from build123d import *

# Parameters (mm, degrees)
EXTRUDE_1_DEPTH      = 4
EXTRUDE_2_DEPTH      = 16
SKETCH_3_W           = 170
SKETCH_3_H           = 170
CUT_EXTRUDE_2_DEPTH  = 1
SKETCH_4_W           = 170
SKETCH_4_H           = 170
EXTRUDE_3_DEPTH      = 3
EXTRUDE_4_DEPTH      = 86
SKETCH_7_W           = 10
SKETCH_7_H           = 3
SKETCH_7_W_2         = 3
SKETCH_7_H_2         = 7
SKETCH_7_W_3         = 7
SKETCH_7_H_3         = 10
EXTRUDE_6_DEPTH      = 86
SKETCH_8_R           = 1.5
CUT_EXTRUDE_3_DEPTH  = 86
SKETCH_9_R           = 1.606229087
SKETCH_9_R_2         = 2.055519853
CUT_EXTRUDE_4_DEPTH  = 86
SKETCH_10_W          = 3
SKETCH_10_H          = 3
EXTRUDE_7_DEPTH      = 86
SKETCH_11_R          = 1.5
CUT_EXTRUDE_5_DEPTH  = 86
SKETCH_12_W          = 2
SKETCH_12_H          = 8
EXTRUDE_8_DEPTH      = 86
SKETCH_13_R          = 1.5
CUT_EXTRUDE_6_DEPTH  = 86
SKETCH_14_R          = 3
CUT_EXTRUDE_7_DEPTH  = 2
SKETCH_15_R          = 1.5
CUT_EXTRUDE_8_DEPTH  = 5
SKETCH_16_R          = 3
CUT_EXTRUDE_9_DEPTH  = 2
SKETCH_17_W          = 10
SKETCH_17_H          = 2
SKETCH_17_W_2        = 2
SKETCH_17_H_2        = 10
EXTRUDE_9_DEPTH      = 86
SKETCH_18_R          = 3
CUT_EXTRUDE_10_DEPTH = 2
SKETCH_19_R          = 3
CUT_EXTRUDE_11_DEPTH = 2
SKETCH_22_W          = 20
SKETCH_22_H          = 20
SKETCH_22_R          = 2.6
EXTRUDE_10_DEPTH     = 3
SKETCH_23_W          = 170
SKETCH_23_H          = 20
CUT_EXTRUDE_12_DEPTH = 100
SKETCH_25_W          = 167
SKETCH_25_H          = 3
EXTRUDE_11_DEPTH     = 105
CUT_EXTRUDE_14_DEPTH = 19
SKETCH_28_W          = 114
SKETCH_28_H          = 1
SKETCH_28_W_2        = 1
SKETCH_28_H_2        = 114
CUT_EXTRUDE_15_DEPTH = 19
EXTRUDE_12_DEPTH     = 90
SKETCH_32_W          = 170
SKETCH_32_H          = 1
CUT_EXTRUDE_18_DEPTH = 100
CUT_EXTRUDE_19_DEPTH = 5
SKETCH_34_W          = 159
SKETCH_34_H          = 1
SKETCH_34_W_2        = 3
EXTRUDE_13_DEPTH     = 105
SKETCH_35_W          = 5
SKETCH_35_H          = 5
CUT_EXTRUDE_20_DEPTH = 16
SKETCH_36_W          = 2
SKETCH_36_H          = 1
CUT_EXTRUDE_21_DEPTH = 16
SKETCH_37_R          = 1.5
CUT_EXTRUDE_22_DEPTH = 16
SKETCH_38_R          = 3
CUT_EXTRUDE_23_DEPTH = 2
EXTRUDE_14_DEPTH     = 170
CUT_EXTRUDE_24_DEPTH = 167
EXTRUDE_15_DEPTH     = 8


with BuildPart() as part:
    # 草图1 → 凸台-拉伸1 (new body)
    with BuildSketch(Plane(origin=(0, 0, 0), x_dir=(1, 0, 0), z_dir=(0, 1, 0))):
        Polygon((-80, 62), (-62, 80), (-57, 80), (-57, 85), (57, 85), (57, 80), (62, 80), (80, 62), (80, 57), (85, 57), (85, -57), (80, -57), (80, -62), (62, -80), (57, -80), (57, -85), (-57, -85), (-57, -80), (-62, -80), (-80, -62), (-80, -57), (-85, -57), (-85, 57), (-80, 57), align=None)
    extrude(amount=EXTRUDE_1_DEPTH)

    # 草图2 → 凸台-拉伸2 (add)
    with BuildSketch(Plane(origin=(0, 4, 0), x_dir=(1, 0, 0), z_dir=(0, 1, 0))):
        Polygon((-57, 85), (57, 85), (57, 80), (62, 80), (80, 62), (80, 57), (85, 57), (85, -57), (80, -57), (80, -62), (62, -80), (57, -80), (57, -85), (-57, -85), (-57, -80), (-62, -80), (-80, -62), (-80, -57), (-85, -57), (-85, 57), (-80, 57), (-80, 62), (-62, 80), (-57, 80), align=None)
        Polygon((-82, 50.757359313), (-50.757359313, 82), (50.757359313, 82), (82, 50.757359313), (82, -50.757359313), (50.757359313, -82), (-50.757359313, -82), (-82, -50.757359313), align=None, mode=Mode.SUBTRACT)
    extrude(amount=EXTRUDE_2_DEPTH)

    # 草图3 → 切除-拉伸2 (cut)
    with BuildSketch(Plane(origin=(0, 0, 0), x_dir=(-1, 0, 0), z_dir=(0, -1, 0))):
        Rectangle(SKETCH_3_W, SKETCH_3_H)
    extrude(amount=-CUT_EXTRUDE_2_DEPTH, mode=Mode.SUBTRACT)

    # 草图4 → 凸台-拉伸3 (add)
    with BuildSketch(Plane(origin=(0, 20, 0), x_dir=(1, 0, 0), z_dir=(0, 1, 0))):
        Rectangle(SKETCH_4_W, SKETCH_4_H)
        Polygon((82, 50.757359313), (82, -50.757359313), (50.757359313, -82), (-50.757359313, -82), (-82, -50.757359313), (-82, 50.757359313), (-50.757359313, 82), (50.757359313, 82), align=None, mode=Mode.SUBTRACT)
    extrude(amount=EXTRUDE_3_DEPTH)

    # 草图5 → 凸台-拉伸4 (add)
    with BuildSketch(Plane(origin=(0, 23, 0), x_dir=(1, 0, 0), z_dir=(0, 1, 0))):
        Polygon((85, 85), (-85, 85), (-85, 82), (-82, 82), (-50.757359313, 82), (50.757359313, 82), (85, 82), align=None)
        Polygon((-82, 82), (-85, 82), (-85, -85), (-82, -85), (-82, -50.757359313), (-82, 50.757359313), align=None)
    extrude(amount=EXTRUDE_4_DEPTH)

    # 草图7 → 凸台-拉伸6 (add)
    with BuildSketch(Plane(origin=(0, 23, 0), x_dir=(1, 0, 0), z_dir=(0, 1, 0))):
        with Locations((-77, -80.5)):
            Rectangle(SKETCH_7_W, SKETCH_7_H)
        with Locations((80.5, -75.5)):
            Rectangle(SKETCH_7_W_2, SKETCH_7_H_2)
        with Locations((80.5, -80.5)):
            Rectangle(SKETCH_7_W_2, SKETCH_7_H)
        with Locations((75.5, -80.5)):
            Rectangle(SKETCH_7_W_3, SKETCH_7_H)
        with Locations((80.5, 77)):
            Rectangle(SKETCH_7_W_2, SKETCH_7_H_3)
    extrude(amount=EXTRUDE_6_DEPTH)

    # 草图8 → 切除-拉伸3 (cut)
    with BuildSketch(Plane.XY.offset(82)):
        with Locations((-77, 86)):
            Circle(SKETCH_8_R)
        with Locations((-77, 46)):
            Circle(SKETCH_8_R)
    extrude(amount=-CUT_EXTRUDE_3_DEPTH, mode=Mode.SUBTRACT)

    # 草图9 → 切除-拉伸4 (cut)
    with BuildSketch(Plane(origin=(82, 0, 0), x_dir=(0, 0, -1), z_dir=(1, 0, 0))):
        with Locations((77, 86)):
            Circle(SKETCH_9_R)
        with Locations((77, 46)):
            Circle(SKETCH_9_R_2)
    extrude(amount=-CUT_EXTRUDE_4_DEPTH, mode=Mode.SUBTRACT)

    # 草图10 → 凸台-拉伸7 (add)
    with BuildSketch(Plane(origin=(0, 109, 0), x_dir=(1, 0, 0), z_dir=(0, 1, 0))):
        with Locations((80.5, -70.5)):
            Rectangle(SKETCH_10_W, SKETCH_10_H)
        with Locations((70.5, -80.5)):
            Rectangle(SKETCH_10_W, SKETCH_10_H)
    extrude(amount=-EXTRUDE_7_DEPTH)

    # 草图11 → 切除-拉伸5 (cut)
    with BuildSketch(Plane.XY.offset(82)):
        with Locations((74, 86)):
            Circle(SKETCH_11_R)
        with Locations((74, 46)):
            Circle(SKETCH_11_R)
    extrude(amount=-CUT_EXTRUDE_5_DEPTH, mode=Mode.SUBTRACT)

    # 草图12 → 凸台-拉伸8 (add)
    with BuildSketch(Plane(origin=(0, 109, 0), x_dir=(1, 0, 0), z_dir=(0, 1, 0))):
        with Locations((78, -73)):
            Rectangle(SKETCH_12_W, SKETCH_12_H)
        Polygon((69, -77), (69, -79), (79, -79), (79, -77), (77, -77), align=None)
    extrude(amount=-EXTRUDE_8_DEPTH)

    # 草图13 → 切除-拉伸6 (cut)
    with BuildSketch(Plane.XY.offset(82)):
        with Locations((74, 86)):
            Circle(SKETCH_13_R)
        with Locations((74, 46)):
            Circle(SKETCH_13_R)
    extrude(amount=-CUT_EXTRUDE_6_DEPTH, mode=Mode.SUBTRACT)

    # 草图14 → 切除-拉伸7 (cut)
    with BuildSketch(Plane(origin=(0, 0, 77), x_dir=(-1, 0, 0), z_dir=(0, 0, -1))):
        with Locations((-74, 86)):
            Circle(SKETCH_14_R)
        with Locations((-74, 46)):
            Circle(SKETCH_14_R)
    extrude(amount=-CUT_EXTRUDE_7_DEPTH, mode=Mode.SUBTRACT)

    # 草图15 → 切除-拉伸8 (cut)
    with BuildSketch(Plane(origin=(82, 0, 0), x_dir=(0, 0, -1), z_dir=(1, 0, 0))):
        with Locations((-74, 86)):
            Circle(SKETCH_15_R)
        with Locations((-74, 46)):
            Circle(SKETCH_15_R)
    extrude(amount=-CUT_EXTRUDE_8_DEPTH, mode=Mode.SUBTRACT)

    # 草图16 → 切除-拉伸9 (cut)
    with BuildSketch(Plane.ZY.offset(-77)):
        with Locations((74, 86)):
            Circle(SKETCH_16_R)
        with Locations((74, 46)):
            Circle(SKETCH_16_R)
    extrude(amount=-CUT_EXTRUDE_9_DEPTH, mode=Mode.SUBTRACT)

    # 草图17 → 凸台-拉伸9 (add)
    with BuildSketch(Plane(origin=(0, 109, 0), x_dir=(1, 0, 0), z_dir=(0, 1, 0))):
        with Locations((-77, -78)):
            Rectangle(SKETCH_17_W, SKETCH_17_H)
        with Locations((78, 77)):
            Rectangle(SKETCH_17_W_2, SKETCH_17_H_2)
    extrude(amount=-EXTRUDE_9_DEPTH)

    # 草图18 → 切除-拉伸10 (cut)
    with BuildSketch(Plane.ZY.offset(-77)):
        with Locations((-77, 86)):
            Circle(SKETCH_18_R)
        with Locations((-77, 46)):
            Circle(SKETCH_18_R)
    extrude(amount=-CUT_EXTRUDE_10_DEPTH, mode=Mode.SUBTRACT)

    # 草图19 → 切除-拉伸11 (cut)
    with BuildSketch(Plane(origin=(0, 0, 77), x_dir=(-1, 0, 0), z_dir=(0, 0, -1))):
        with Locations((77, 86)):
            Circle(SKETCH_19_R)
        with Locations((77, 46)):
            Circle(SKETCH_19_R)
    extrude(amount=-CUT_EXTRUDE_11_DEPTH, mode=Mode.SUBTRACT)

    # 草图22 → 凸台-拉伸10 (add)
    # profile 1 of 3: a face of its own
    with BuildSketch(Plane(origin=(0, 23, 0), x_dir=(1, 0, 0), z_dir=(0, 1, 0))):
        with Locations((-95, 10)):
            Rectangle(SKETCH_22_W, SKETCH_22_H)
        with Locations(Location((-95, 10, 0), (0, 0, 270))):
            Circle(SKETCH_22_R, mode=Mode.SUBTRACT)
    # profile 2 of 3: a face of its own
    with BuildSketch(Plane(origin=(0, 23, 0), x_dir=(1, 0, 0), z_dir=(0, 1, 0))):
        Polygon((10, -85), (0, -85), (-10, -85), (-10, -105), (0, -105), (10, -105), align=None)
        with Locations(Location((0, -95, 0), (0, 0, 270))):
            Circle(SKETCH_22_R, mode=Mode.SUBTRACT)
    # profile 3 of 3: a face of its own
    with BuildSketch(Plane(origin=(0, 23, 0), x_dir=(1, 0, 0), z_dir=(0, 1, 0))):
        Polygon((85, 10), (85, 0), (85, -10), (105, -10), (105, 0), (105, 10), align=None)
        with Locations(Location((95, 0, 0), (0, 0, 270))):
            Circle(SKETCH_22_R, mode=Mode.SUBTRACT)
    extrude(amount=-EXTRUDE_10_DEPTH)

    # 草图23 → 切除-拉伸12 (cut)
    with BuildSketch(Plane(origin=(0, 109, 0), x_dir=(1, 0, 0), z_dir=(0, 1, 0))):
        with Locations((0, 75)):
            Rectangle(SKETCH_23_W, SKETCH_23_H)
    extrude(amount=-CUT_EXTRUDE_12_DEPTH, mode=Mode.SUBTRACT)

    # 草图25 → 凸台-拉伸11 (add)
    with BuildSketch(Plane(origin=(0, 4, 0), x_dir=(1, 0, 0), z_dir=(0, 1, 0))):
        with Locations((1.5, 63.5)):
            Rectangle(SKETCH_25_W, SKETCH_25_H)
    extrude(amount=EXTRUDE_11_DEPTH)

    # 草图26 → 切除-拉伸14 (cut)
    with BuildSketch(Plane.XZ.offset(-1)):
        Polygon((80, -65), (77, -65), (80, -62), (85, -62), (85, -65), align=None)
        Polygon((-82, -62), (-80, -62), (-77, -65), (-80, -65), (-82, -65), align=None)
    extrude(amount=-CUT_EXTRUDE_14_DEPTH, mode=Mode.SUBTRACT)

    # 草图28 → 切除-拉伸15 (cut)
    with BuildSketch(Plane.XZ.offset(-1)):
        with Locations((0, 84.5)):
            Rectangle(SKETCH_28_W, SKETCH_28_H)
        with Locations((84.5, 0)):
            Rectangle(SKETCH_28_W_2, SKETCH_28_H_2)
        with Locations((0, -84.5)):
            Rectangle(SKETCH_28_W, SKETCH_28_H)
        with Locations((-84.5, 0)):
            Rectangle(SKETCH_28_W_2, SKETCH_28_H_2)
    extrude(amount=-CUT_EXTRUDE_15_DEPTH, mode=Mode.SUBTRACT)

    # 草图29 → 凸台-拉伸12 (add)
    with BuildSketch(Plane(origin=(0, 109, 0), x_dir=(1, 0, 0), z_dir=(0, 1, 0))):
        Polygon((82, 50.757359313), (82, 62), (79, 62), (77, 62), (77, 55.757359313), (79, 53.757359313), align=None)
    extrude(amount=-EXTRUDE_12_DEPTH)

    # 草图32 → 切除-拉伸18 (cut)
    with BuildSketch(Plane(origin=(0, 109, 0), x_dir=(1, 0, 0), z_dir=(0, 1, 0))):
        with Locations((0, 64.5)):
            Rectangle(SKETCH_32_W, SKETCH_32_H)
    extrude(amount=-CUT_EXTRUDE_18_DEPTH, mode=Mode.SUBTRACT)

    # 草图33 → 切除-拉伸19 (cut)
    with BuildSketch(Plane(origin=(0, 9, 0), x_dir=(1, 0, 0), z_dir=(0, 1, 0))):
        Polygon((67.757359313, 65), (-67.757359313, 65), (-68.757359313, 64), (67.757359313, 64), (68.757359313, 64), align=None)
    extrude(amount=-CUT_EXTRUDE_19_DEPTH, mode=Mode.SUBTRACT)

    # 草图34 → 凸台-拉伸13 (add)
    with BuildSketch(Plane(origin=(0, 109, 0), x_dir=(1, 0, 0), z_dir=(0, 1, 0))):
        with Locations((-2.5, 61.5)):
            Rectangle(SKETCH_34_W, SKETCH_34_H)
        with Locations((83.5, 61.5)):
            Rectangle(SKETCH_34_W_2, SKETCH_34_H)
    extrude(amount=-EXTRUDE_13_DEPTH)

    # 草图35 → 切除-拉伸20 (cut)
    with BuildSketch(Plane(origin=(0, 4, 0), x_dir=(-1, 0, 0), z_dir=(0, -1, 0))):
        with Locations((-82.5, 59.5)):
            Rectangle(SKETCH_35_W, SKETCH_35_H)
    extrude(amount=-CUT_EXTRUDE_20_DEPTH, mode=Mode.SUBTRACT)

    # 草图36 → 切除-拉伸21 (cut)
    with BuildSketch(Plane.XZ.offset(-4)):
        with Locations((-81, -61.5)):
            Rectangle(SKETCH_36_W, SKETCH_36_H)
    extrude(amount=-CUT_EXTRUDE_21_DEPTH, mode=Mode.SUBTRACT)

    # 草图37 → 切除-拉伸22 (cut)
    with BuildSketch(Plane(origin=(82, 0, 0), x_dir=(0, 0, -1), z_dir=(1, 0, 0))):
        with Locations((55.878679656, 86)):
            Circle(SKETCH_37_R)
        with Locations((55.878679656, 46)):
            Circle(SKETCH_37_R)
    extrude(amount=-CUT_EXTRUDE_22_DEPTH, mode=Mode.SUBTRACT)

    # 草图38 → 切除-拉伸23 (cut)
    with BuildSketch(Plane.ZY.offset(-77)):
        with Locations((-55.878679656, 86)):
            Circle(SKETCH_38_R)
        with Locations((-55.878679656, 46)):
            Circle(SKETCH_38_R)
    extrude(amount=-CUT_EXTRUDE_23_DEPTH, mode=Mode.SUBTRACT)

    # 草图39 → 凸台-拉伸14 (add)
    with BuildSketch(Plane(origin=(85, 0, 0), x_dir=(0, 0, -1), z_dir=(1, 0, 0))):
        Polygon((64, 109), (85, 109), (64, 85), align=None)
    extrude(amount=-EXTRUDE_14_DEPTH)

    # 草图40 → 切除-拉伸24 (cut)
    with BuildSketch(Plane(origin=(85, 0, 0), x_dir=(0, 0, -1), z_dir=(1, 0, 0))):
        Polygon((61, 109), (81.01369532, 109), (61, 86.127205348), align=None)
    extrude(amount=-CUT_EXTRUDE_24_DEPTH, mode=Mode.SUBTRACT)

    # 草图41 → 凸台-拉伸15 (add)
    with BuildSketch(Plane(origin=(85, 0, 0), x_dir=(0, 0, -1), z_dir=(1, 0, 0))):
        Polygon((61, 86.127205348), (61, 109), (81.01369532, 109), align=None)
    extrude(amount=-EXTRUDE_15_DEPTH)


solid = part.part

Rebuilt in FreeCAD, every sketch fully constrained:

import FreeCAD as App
import Part
import Sketcher
from FreeCAD import Vector
Q = App.Units.Quantity


def add_polygon(sketch, points):
    """Adds a closed chain of lines whose ends are joined by coincident constraints."""
    first, n = sketch.GeometryCount, len(points)
    for a, b in zip(points, points[1:] + points[:1]):
        sketch.addGeometry(Part.LineSegment(App.Vector(*a, 0), App.Vector(*b, 0)), False)
    for i in range(n):
        sketch.addConstraint(Sketcher.Constraint("Coincident", first + i, 2, first + (i + 1) % n, 1))

doc = App.newDocument("Part")
body = doc.addObject("PartDesign::Body", "Body")

sketch1 = body.newObject("Sketcher::SketchObject", "Sketch")
sketch1.AttachmentSupport = (doc.getObject("XZ_Plane"), [""])
sketch1.MapMode = "FlatFace"
add_polygon(sketch1, [(-62, -80), (-80, -62), (-80, -57), (-85, -57), (-85, 57), (-80, 57), (-80, 62), (-62, 80), (-57, 80), (-57, 85), (57, 85), (57, 80), (62, 80), (80, 62), (80, 57), (85, 57), (85, -57), (80, -57), (80, -62), (62, -80), (57, -80), (57, -85), (-57, -85), (-57, -80)])
sketch1.addConstraint([
    Sketcher.Constraint("Vertical", 1),
    Sketcher.Constraint("Horizontal", 2),
    Sketcher.Constraint("Vertical", 3),
    Sketcher.Constraint("Horizontal", 4),
    Sketcher.Constraint("Vertical", 5),
    Sketcher.Constraint("Horizontal", 7),
    Sketcher.Constraint("Vertical", 8),
    Sketcher.Constraint("Horizontal", 9),
    Sketcher.Constraint("Vertical", 10),
    Sketcher.Constraint("Horizontal", 11),
    Sketcher.Constraint("Vertical", 13),
    Sketcher.Constraint("Horizontal", 14),
    Sketcher.Constraint("Vertical", 15),
    Sketcher.Constraint("Horizontal", 16),
    Sketcher.Constraint("Vertical", 17),
    Sketcher.Constraint("Horizontal", 19),
    Sketcher.Constraint("Vertical", 20),
    Sketcher.Constraint("Horizontal", 21),
    Sketcher.Constraint("Vertical", 22),
    Sketcher.Constraint("Horizontal", 23),
    Sketcher.Constraint("Symmetric", 0, 2, 12, 2, -1, 1),
    Sketcher.Constraint("Symmetric", 2, 2, 14, 2, -1, 1),
    Sketcher.Constraint("Symmetric", 4, 2, 16, 2, -1, 1),
    Sketcher.Constraint("Symmetric", 6, 2, 18, 2, -1, 1),
    Sketcher.Constraint("Symmetric", 8, 2, 20, 2, -1, 1),
    Sketcher.Constraint("Symmetric", 10, 2, 22, 2, -1, 1),
    Sketcher.Constraint("Symmetric", 7, 2, 10, 2, -2),
    Sketcher.Constraint("Symmetric", 5, 2, 12, 2, -2),
    Sketcher.Constraint("Perpendicular", 0, 6),
    Sketcher.Constraint("Perpendicular", 6, 12),
    Sketcher.Constraint("Perpendicular", 12, 18),
    Sketcher.Constraint("Horizontal", 4, 2, 13, 2),
    Sketcher.Constraint("Vertical", 11, 2, 18, 2),
    Sketcher.Constraint("Equal", 4, 7),
    Sketcher.Constraint("Equal", 23, 1),
    Sketcher.Constraint("Equal", 21, 3),
    Sketcher.Constraint("Equal", 5, 8),
    Sketcher.Constraint("DistanceX", 2, 2, 2, 1, Q("5 mm")),
    Sketcher.Constraint("DistanceX", 9, 1, 9, 2, Q("114 mm")),
    Sketcher.Constraint("DistanceX", 0, 2, -1, 1, Q("80 mm")),
])
pad1 = body.newObject("PartDesign::Pad", "Pad")
pad1.Profile = sketch1
pad1.Length = 4
pad1.Reversed = True

sketch2 = body.newObject("Sketcher::SketchObject", "Sketch001")
sketch2.AttachmentSupport = (doc.getObject("XZ_Plane"), [""])
sketch2.MapMode = "FlatFace"
sketch2.AttachmentOffset = App.Placement(Vector(0, 0, -4), App.Rotation())
add_polygon(sketch2, [(57, -85), (-57, -85), (-57, -80), (-62, -80), (-80, -62), (-80, -57), (-85, -57), (-85, 57), (-80, 57), (-80, 62), (-62, 80), (-57, 80), (-57, 85), (57, 85), (57, 80), (62, 80), (80, 62), (80, 57), (85, 57), (85, -57), (80, -57), (80, -62), (62, -80), (57, -80)])
add_polygon(sketch2, [(-82, -51), (-51, -82), (51, -82), (82, -51), (82, 51), (51, 82), (-51, 82), (-82, 51)])
sketch2.addConstraint([
    Sketcher.Constraint("Horizontal", 0),
    Sketcher.Constraint("Vertical", 1),
    Sketcher.Constraint("Horizontal", 2),
    Sketcher.Constraint("Vertical", 4),
    Sketcher.Constraint("Horizontal", 5),
    Sketcher.Constraint("Vertical", 6),
    Sketcher.Constraint("Horizontal", 7),
    Sketcher.Constraint("Vertical", 8),
    Sketcher.Constraint("Horizontal", 10),
    Sketcher.Constraint("Vertical", 11),
    Sketcher.Constraint("Horizontal", 12),
    Sketcher.Constraint("Vertical", 13),
    Sketcher.Constraint("Horizontal", 14),
    Sketcher.Constraint("Vertical", 16),
    Sketcher.Constraint("Horizontal", 17),
    Sketcher.Constraint("Vertical", 18),
    Sketcher.Constraint("Horizontal", 19),
    Sketcher.Constraint("Vertical", 20),
    Sketcher.Constraint("Horizontal", 22),
    Sketcher.Constraint("Vertical", 23),
    Sketcher.Constraint("Horizontal", 25),
    Sketcher.Constraint("Vertical", 27),
    Sketcher.Constraint("Horizontal", 29),
    Sketcher.Constraint("Vertical", 31),
    Sketcher.Constraint("Symmetric", 0, 2, 12, 2, -1, 1),
    Sketcher.Constraint("Symmetric", 2, 2, 14, 2, -1, 1),
    Sketcher.Constraint("Symmetric", 3, 2, 15, 2, -1, 1),
    Sketcher.Constraint("Symmetric", 5, 2, 17, 2, -1, 1),
    Sketcher.Constraint("Symmetric", 7, 2, 19, 2, -1, 1),
    Sketcher.Constraint("Symmetric", 9, 2, 21, 2, -1, 1),
    Sketcher.Constraint("Symmetric", 24, 2, 28, 2, -1, 1),
    Sketcher.Constraint("Symmetric", 26, 2, 30, 2, -1, 1),
    Sketcher.Constraint("Symmetric", 10, 2, 13, 2, -2),
    Sketcher.Constraint("Symmetric", 8, 2, 15, 2, -2),
    Sketcher.Constraint("Perpendicular", 3, 9),
    Sketcher.Constraint("Perpendicular", 15, 21),
    Sketcher.Constraint("Perpendicular", 21, 24),
    Sketcher.Constraint("Perpendicular", 24, 26),
    Sketcher.Constraint("Perpendicular", 26, 28),
    Sketcher.Constraint("Perpendicular", 28, 30),
    Sketcher.Constraint("Horizontal", 7, 2, 16, 2),
    Sketcher.Constraint("Horizontal", 27, 2, 30, 2),
    Sketcher.Constraint("Vertical", 2, 2, 9, 2),
    Sketcher.Constraint("Vertical", 13, 2, 22, 2),
    Sketcher.Constraint("Equal", 2, 5),
    Sketcher.Constraint("Equal", 22, 1),
    Sketcher.Constraint("Equal", 1, 4),
    Sketcher.Constraint("Equal", 12, 6),
    Sketcher.Constraint("Equal", 29, 27),
    Sketcher.Constraint("DistanceX", 0, 2, 0, 1, Q("114 mm")),
    Sketcher.Constraint("DistanceX", 2, 2, 2, 1, Q("5 mm")),
    Sketcher.Constraint("DistanceY", 0, 2, -1, 1, Q("85 mm")),
    Sketcher.Constraint("DistanceY", 24, 2, -1, 1, Q("82 mm")),
    Sketcher.Constraint("DistanceX", 25, 1, 25, 2, Q("101.514719 mm")),
])
pad2 = body.newObject("PartDesign::Pad", "Pad001")
pad2.Profile = sketch2
pad2.Length = 16
pad2.Reversed = True

sketch3 = body.newObject("Sketcher::SketchObject", "Sketch002")
sketch3.AttachmentSupport = (doc.getObject("XZ_Plane"), [""])
sketch3.MapMode = "FlatFace"
add_polygon(sketch3, [(85, -85), (85, 85), (-85, 85), (-85, -85)])
sketch3.addConstraint([
    Sketcher.Constraint("Vertical", 0),
    Sketcher.Constraint("Horizontal", 1),
    Sketcher.Constraint("Vertical", 2),
    Sketcher.Constraint("Horizontal", 3),
    Sketcher.Constraint("Symmetric", 0, 2, 2, 2, -1, 1),
    Sketcher.Constraint("Equal", 3, 0),
    Sketcher.Constraint("DistanceX", 1, 2, 1, 1, Q("170 mm")),
])
pocket1 = body.newObject("PartDesign::Pocket", "Pocket")
pocket1.Profile = sketch3
pocket1.Length = 1

sketch4 = body.newObject("Sketcher::SketchObject", "Sketch003")
sketch4.AttachmentSupport = (doc.getObject("XZ_Plane"), [""])
sketch4.MapMode = "FlatFace"
sketch4.AttachmentOffset = App.Placement(Vector(0, 0, -20), App.Rotation())
add_polygon(sketch4, [(-85, -85), (-85, 85), (85, 85), (85, -85)])
add_polygon(sketch4, [(51, -82), (82, -51), (82, 51), (51, 82), (-51, 82), (-82, 51), (-82, -51), (-51, -82)])
sketch4.addConstraint([
    Sketcher.Constraint("Vertical", 0),
    Sketcher.Constraint("Horizontal", 1),
    Sketcher.Constraint("Vertical", 2),
    Sketcher.Constraint("Horizontal", 3),
    Sketcher.Constraint("Vertical", 5),
    Sketcher.Constraint("Horizontal", 7),
    Sketcher.Constraint("Vertical", 9),
    Sketcher.Constraint("Horizontal", 11),
    Sketcher.Constraint("Symmetric", 0, 2, 2, 2, -1, 1),
    Sketcher.Constraint("Symmetric", 4, 2, 8, 2, -1, 1),
    Sketcher.Constraint("Symmetric", 6, 2, 10, 2, -1, 1),
    Sketcher.Constraint("Perpendicular", 4, 6),
    Sketcher.Constraint("Perpendicular", 6, 8),
    Sketcher.Constraint("Perpendicular", 8, 10),
    Sketcher.Constraint("Horizontal", 5, 2, 8, 2),
    Sketcher.Constraint("Vertical", 7, 2, 10, 2),
    Sketcher.Constraint("Equal", 3, 0),
    Sketcher.Constraint("Equal", 11, 5),
    Sketcher.Constraint("DistanceX", 1, 1, 1, 2, Q("170 mm")),
    Sketcher.Constraint("DistanceX", -1, 1, 4, 2, Q("82 mm")),
    Sketcher.Constraint("DistanceX", 7, 2, 7, 1, Q("101.514719 mm")),
])
pad3 = body.newObject("PartDesign::Pad", "Pad002")
pad3.Profile = sketch4
pad3.Length = 3
pad3.Reversed = True

sketch5 = body.newObject("Sketcher::SketchObject", "Sketch004")
sketch5.AttachmentSupport = (doc.getObject("XZ_Plane"), [""])
sketch5.MapMode = "FlatFace"
sketch5.AttachmentOffset = App.Placement(Vector(0, 0, -23), App.Rotation())
add_polygon(sketch5, [(85, -85), (-85, -85), (-85, 85), (-82, 85), (-82, -82), (85, -82)])
sketch5.addConstraint([
    Sketcher.Constraint("Horizontal", 0),
    Sketcher.Constraint("Vertical", 1),
    Sketcher.Constraint("Horizontal", 2),
    Sketcher.Constraint("Vertical", 3),
    Sketcher.Constraint("Horizontal", 4),
    Sketcher.Constraint("Vertical", 5),
    Sketcher.Constraint("Symmetric", 1, 2, 5, 2, -1, 1),
    Sketcher.Constraint("Equal", 0, 1),
    Sketcher.Constraint("Equal", 4, 3),
    Sketcher.Constraint("DistanceX", 0, 2, 0, 1, Q("170 mm")),
    Sketcher.Constraint("DistanceX", 2, 1, 2, 2, Q("3 mm")),
])
pad4 = body.newObject("PartDesign::Pad", "Pad003")
pad4.Profile = sketch5
pad4.Length = 86
pad4.Reversed = True

sketch6 = body.newObject("Sketcher::SketchObject", "Sketch005")
sketch6.AttachmentSupport = (doc.getObject("XZ_Plane"), [""])
sketch6.MapMode = "FlatFace"
sketch6.AttachmentOffset = App.Placement(Vector(0, 0, -23), App.Rotation())
add_polygon(sketch6, [(-82, 79), (-82, 82), (-72, 82), (-72, 79)])
add_polygon(sketch6, [(79, 72), (79, 79), (72, 79), (72, 82), (82, 82), (82, 72)])
add_polygon(sketch6, [(79, -82), (79, -72), (82, -72), (82, -82)])
sketch6.addConstraint([
    Sketcher.Constraint("Vertical", 0),
    Sketcher.Constraint("Horizontal", 1),
    Sketcher.Constraint("Vertical", 2),
    Sketcher.Constraint("Horizontal", 3),
    Sketcher.Constraint("Vertical", 4),
    Sketcher.Constraint("Horizontal", 5),
    Sketcher.Constraint("Vertical", 6),
    Sketcher.Constraint("Horizontal", 7),
    Sketcher.Constraint("Vertical", 8),
    Sketcher.Constraint("Horizontal", 9),
    Sketcher.Constraint("Vertical", 10),
    Sketcher.Constraint("Horizontal", 11),
    Sketcher.Constraint("Vertical", 12),
    Sketcher.Constraint("Horizontal", 13),
    Sketcher.Constraint("Symmetric", 0, 2, 12, 2, -1, 1),
    Sketcher.Constraint("Symmetric", 2, 2, 5, 2, -2),
    Sketcher.Constraint("Symmetric", 0, 2, 7, 2, -2),
    Sketcher.Constraint("Symmetric", 9, 2, 10, 2, -1),
    Sketcher.Constraint("Equal", 13, 0),
    Sketcher.Constraint("Equal", 5, 4),
    Sketcher.Constraint("DistanceX", 1, 1, 1, 2, Q("10 mm")),
    Sketcher.Constraint("DistanceX", 5, 2, 5, 1, Q("7 mm")),
    Sketcher.Constraint("DistanceX", 0, 2, -1, 1, Q("82 mm")),
    Sketcher.Constraint("DistanceY", -1, 1, 0, 2, Q("82 mm")),
])
pad5 = body.newObject("PartDesign::Pad", "Pad004")
pad5.Profile = sketch6
pad5.Length = 86
pad5.Reversed = True

sketch7 = body.newObject("Sketcher::SketchObject", "Sketch006")
sketch7.AttachmentSupport = (doc.getObject("XY_Plane"), [""])
sketch7.MapMode = "FlatFace"
sketch7.AttachmentOffset = App.Placement(Vector(0, 0, 82), App.Rotation())
sketch7.addGeometry([
    Part.Circle(Vector(-77, 86, 0), Vector(0, 0, 1), 1.5),
    Part.Circle(Vector(-77, 46, 0), Vector(0, 0, 1), 1.5),
], False)
sketch7.addConstraint([
    Sketcher.Constraint("Equal", 0, 1),
    Sketcher.Constraint("Vertical", 0, 3, 1, 3),
    Sketcher.Constraint("Diameter", 0, Q("3 mm")),
    Sketcher.Constraint("DistanceX", 0, 3, -1, 1, Q("77 mm")),
    Sketcher.Constraint("DistanceY", -1, 1, 0, 3, Q("86 mm")),
    Sketcher.Constraint("DistanceY", -1, 1, 1, 3, Q("46 mm")),
])
pocket2 = body.newObject("PartDesign::Pocket", "Pocket001")
pocket2.Profile = sketch7
pocket2.Length = 86

sketch8 = body.newObject("Sketcher::SketchObject", "Sketch007")
sketch8.AttachmentSupport = (doc.getObject("YZ_Plane"), [""])
sketch8.MapMode = "FlatFace"
sketch8.AttachmentOffset = App.Placement(Vector(0, 0, 82), App.Rotation())
sketch8.addGeometry([
    Part.Circle(Vector(86, -77, 0), Vector(0, 0, 1), 1.6),
    Part.Circle(Vector(46, -77, 0), Vector(0, 0, 1), 2.1),
], False)
sketch8.addConstraint([
    Sketcher.Constraint("Horizontal", 0, 3, 1, 3),
    Sketcher.Constraint("DistanceX", -1, 1, 0, 3, Q("86 mm")),
    Sketcher.Constraint("DistanceY", 0, 3, -1, 1, Q("77 mm")),
    Sketcher.Constraint("DistanceX", -1, 1, 1, 3, Q("46 mm")),
    Sketcher.Constraint("Diameter", 0, Q("3.212458 mm")),
    Sketcher.Constraint("Diameter", 1, Q("4.11104 mm")),
])
pocket3 = body.newObject("PartDesign::Pocket", "Pocket002")
pocket3.Profile = sketch8
pocket3.Length = 86

sketch9 = body.newObject("Sketcher::SketchObject", "Sketch008")
sketch9.AttachmentSupport = (doc.getObject("XZ_Plane"), [""])
sketch9.MapMode = "FlatFace"
sketch9.AttachmentOffset = App.Placement(Vector(0, 0, -109), App.Rotation())
add_polygon(sketch9, [(79, 69), (79, 72), (82, 72), (82, 69)])
add_polygon(sketch9, [(69, 79), (69, 82), (72, 82), (72, 79)])
sketch9.addConstraint([
    Sketcher.Constraint("Vertical", 0),
    Sketcher.Constraint("Horizontal", 1),
    Sketcher.Constraint("Vertical", 2),
    Sketcher.Constraint("Horizontal", 3),
    Sketcher.Constraint("Vertical", 4),
    Sketcher.Constraint("Horizontal", 5),
    Sketcher.Constraint("Vertical", 6),
    Sketcher.Constraint("Horizontal", 7),
    Sketcher.Constraint("Equal", 3, 5),
    Sketcher.Constraint("Equal", 7, 0),
    Sketcher.Constraint("Equal", 2, 4),
    Sketcher.Constraint("DistanceX", 1, 1, 1, 2, Q("3 mm")),
    Sketcher.Constraint("DistanceX", -1, 1, 0, 2, Q("79 mm")),
    Sketcher.Constraint("DistanceY", -1, 1, 0, 2, Q("72 mm")),
    Sketcher.Constraint("DistanceX", -1, 1, 4, 2, Q("69 mm")),
    Sketcher.Constraint("DistanceY", -1, 1, 4, 2, Q("82 mm")),
])
pad6 = body.newObject("PartDesign::Pad", "Pad005")
pad6.Profile = sketch9
pad6.Length = 86

sketch10 = body.newObject("Sketcher::SketchObject", "Sketch009")
sketch10.AttachmentSupport = (doc.getObject("XY_Plane"), [""])
sketch10.MapMode = "FlatFace"
sketch10.AttachmentOffset = App.Placement(Vector(0, 0, 82), App.Rotation())
sketch10.addGeometry([
    Part.Circle(Vector(74, 86, 0), Vector(0, 0, 1), 1.5),
    Part.Circle(Vector(74, 46, 0), Vector(0, 0, 1), 1.5),
], False)
sketch10.addConstraint([
    Sketcher.Constraint("Equal", 0, 1),
    Sketcher.Constraint("Vertical", 0, 3, 1, 3),
    Sketcher.Constraint("Diameter", 0, Q("3 mm")),
    Sketcher.Constraint("DistanceX", -1, 1, 0, 3, Q("74 mm")),
    Sketcher.Constraint("DistanceY", -1, 1, 0, 3, Q("86 mm")),
    Sketcher.Constraint("DistanceY", -1, 1, 1, 3, Q("46 mm")),
])
pocket4 = body.newObject("PartDesign::Pocket", "Pocket003")
pocket4.Profile = sketch10
pocket4.Length = 86

sketch11 = body.newObject("Sketcher::SketchObject", "Sketch010")
sketch11.AttachmentSupport = (doc.getObject("XZ_Plane"), [""])
sketch11.MapMode = "FlatFace"
sketch11.AttachmentOffset = App.Placement(Vector(0, 0, -109), App.Rotation())
add_polygon(sketch11, [(77, 69), (77, 77), (69, 77), (69, 79), (79, 79), (79, 69)])
sketch11.addConstraint([
    Sketcher.Constraint("Vertical", 0),
    Sketcher.Constraint("Horizontal", 1),
    Sketcher.Constraint("Vertical", 2),
    Sketcher.Constraint("Horizontal", 3),
    Sketcher.Constraint("Vertical", 4),
    Sketcher.Constraint("Horizontal", 5),
    Sketcher.Constraint("Equal", 1, 0),
    Sketcher.Constraint("Equal", 5, 2),
    Sketcher.Constraint("DistanceX", 1, 2, 1, 1, Q("8 mm")),
    Sketcher.Constraint("DistanceX", 3, 1, 3, 2, Q("10 mm")),
    Sketcher.Constraint("DistanceX", -1, 1, 0, 2, Q("77 mm")),
    Sketcher.Constraint("DistanceY", -1, 1, 0, 2, Q("77 mm")),
])
pad7 = body.newObject("PartDesign::Pad", "Pad006")
pad7.Profile = sketch11
pad7.Length = 86

sketch12 = body.newObject("Sketcher::SketchObject", "Sketch011")
sketch12.AttachmentSupport = (doc.getObject("XY_Plane"), [""])
sketch12.MapMode = "FlatFace"
sketch12.AttachmentOffset = App.Placement(Vector(0, 0, 82), App.Rotation())
sketch12.addGeometry([
    Part.Circle(Vector(74, 86, 0), Vector(0, 0, 1), 1.5),
    Part.Circle(Vector(74, 46, 0), Vector(0, 0, 1), 1.5),
], False)
sketch12.addConstraint([
    Sketcher.Constraint("Equal", 0, 1),
    Sketcher.Constraint("Vertical", 0, 3, 1, 3),
    Sketcher.Constraint("Diameter", 0, Q("3 mm")),
    Sketcher.Constraint("DistanceX", -1, 1, 0, 3, Q("74 mm")),
    Sketcher.Constraint("DistanceY", -1, 1, 0, 3, Q("86 mm")),
    Sketcher.Constraint("DistanceY", -1, 1, 1, 3, Q("46 mm")),
])
pocket5 = body.newObject("PartDesign::Pocket", "Pocket004")
pocket5.Profile = sketch12
pocket5.Length = 86

sketch13 = body.newObject("Sketcher::SketchObject", "Sketch012")
sketch13.AttachmentSupport = (doc.getObject("XY_Plane"), [""])
sketch13.MapMode = "FlatFace"
sketch13.AttachmentOffset = App.Placement(Vector(0, 0, 77), App.Rotation())
sketch13.addGeometry([
    Part.Circle(Vector(74, 86, 0), Vector(0, 0, 1), 3),
    Part.Circle(Vector(74, 46, 0), Vector(0, 0, 1), 3),
], False)
sketch13.addConstraint([
    Sketcher.Constraint("Equal", 0, 1),
    Sketcher.Constraint("Vertical", 0, 3, 1, 3),
    Sketcher.Constraint("Diameter", 0, Q("6 mm")),
    Sketcher.Constraint("DistanceX", -1, 1, 0, 3, Q("74 mm")),
    Sketcher.Constraint("DistanceY", -1, 1, 0, 3, Q("86 mm")),
    Sketcher.Constraint("DistanceY", -1, 1, 1, 3, Q("46 mm")),
])
pocket6 = body.newObject("PartDesign::Pocket", "Pocket005")
pocket6.Profile = sketch13
pocket6.Length = 2
pocket6.Reversed = True

sketch14 = body.newObject("Sketcher::SketchObject", "Sketch013")
sketch14.AttachmentSupport = (doc.getObject("YZ_Plane"), [""])
sketch14.MapMode = "FlatFace"
sketch14.AttachmentOffset = App.Placement(Vector(0, 0, 82), App.Rotation())
sketch14.addGeometry([
    Part.Circle(Vector(86, 74, 0), Vector(0, 0, 1), 1.5),
    Part.Circle(Vector(46, 74, 0), Vector(0, 0, 1), 1.5),
], False)
sketch14.addConstraint([
    Sketcher.Constraint("Equal", 0, 1),
    Sketcher.Constraint("Horizontal", 0, 3, 1, 3),
    Sketcher.Constraint("Diameter", 0, Q("3 mm")),
    Sketcher.Constraint("DistanceX", -1, 1, 0, 3, Q("86 mm")),
    Sketcher.Constraint("DistanceY", -1, 1, 0, 3, Q("74 mm")),
    Sketcher.Constraint("DistanceX", -1, 1, 1, 3, Q("46 mm")),
])
pocket7 = body.newObject("PartDesign::Pocket", "Pocket006")
pocket7.Profile = sketch14
pocket7.Length = 5

sketch15 = body.newObject("Sketcher::SketchObject", "Sketch014")
sketch15.AttachmentSupport = (doc.getObject("YZ_Plane"), [""])
sketch15.MapMode = "FlatFace"
sketch15.AttachmentOffset = App.Placement(Vector(0, 0, 77), App.Rotation())
sketch15.addGeometry([
    Part.Circle(Vector(86, 74, 0), Vector(0, 0, 1), 3),
    Part.Circle(Vector(46, 74, 0), Vector(0, 0, 1), 3),
], False)
sketch15.addConstraint([
    Sketcher.Constraint("Equal", 0, 1),
    Sketcher.Constraint("Horizontal", 0, 3, 1, 3),
    Sketcher.Constraint("Diameter", 0, Q("6 mm")),
    Sketcher.Constraint("DistanceX", -1, 1, 0, 3, Q("86 mm")),
    Sketcher.Constraint("DistanceY", -1, 1, 0, 3, Q("74 mm")),
    Sketcher.Constraint("DistanceX", -1, 1, 1, 3, Q("46 mm")),
])
pocket8 = body.newObject("PartDesign::Pocket", "Pocket007")
pocket8.Profile = sketch15
pocket8.Length = 2
pocket8.Reversed = True

sketch16 = body.newObject("Sketcher::SketchObject", "Sketch015")
sketch16.AttachmentSupport = (doc.getObject("XZ_Plane"), [""])
sketch16.MapMode = "FlatFace"
sketch16.AttachmentOffset = App.Placement(Vector(0, 0, -109), App.Rotation())
add_polygon(sketch16, [(-82, 77), (-82, 79), (-72, 79), (-72, 77)])
add_polygon(sketch16, [(77, -82), (77, -72), (79, -72), (79, -82)])
sketch16.addConstraint([
    Sketcher.Constraint("Vertical", 0),
    Sketcher.Constraint("Horizontal", 1),
    Sketcher.Constraint("Vertical", 2),
    Sketcher.Constraint("Horizontal", 3),
    Sketcher.Constraint("Vertical", 4),
    Sketcher.Constraint("Horizontal", 5),
    Sketcher.Constraint("Vertical", 6),
    Sketcher.Constraint("Horizontal", 7),
    Sketcher.Constraint("Equal", 7, 0),
    Sketcher.Constraint("Equal", 3, 4),
    Sketcher.Constraint("DistanceX", 1, 1, 1, 2, Q("10 mm")),
    Sketcher.Constraint("DistanceX", 5, 1, 5, 2, Q("2 mm")),
    Sketcher.Constraint("DistanceX", 0, 2, -1, 1, Q("82 mm")),
    Sketcher.Constraint("DistanceY", -1, 1, 0, 2, Q("79 mm")),
    Sketcher.Constraint("DistanceX", -1, 1, 4, 2, Q("77 mm")),
    Sketcher.Constraint("DistanceY", 4, 2, -1, 1, Q("72 mm")),
])
pad8 = body.newObject("PartDesign::Pad", "Pad007")
pad8.Profile = sketch16
pad8.Length = 86

sketch17 = body.newObject("Sketcher::SketchObject", "Sketch016")
sketch17.AttachmentSupport = (doc.getObject("YZ_Plane"), [""])
sketch17.MapMode = "FlatFace"
sketch17.AttachmentOffset = App.Placement(Vector(0, 0, 77), App.Rotation())
sketch17.addGeometry([
    Part.Circle(Vector(86, -77, 0), Vector(0, 0, 1), 3),
    Part.Circle(Vector(46, -77, 0), Vector(0, 0, 1), 3),
], False)
sketch17.addConstraint([
    Sketcher.Constraint("Equal", 0, 1),
    Sketcher.Constraint("Horizontal", 0, 3, 1, 3),
    Sketcher.Constraint("Diameter", 0, Q("6 mm")),
    Sketcher.Constraint("DistanceX", -1, 1, 0, 3, Q("86 mm")),
    Sketcher.Constraint("DistanceY", 0, 3, -1, 1, Q("77 mm")),
    Sketcher.Constraint("DistanceX", -1, 1, 1, 3, Q("46 mm")),
])
pocket9 = body.newObject("PartDesign::Pocket", "Pocket008")
pocket9.Profile = sketch17
pocket9.Length = 2
pocket9.Reversed = True

sketch18 = body.newObject("Sketcher::SketchObject", "Sketch017")
sketch18.AttachmentSupport = (doc.getObject("XY_Plane"), [""])
sketch18.MapMode = "FlatFace"
sketch18.AttachmentOffset = App.Placement(Vector(0, 0, 77), App.Rotation())
sketch18.addGeometry([
    Part.Circle(Vector(-77, 86, 0), Vector(0, 0, 1), 3),
    Part.Circle(Vector(-77, 46, 0), Vector(0, 0, 1), 3),
], False)
sketch18.addConstraint([
    Sketcher.Constraint("Equal", 0, 1),
    Sketcher.Constraint("Vertical", 0, 3, 1, 3),
    Sketcher.Constraint("Diameter", 0, Q("6 mm")),
    Sketcher.Constraint("DistanceX", 0, 3, -1, 1, Q("77 mm")),
    Sketcher.Constraint("DistanceY", -1, 1, 0, 3, Q("86 mm")),
    Sketcher.Constraint("DistanceY", -1, 1, 1, 3, Q("46 mm")),
])
pocket10 = body.newObject("PartDesign::Pocket", "Pocket009")
pocket10.Profile = sketch18
pocket10.Length = 2
pocket10.Reversed = True

sketch19 = body.newObject("Sketcher::SketchObject", "Sketch018")
sketch19.AttachmentSupport = (doc.getObject("XZ_Plane"), [""])
sketch19.MapMode = "FlatFace"
sketch19.AttachmentOffset = App.Placement(Vector(0, 0, -23), App.Rotation())
add_polygon(sketch19, [(-105, -20), (-105, 0), (-85, 0), (-85, -20)])
sketch19.addGeometry(Part.Circle(Vector(-95, -10, 0), Vector(0, 0, 1), 2.6), False)
add_polygon(sketch19, [(10, 85), (-10, 85), (-10, 105), (10, 105)])
sketch19.addGeometry(Part.Circle(Vector(0, 95, 0), Vector(0, 0, 1), 2.6), False)
add_polygon(sketch19, [(85, -10), (85, 10), (105, 10), (105, -10)])
sketch19.addGeometry(Part.Circle(Vector(95, 0, 0), Vector(0, 0, 1), 2.6), False)
sketch19.addConstraint([
    Sketcher.Constraint("Vertical", 0),
    Sketcher.Constraint("Horizontal", 1),
    Sketcher.Constraint("Vertical", 2),
    Sketcher.Constraint("Horizontal", 3),
    Sketcher.Constraint("Horizontal", 5),
    Sketcher.Constraint("Vertical", 6),
    Sketcher.Constraint("Horizontal", 7),
    Sketcher.Constraint("Vertical", 8),
    Sketcher.Constraint("Vertical", 10),
    Sketcher.Constraint("Horizontal", 11),
    Sketcher.Constraint("Vertical", 12),
    Sketcher.Constraint("Horizontal", 13),
    Sketcher.Constraint("Equal", 4, 9),
    Sketcher.Constraint("Equal", 9, 14),
    Sketcher.Constraint("PointOnObject", 9, 3, -2),
    Sketcher.Constraint("PointOnObject", 14, 3, -1),
    Sketcher.Constraint("PointOnObject", 0, 2, -1),
    Sketcher.Constraint("Horizontal", 4, 3, 12, 2),
    Sketcher.Constraint("Equal", 3, 5),
    Sketcher.Constraint("Equal", 7, 11),
    Sketcher.Constraint("Equal", 13, 0),
    Sketcher.Constraint("Equal", 2, 6),
    Sketcher.Constraint("Equal", 8, 10),
    Sketcher.Constraint("Diameter", 4, Q("5.2 mm")),
    Sketcher.Constraint("DistanceX", 1, 1, 1, 2, Q("20 mm")),
    Sketcher.Constraint("DistanceX", 4, 3, -1, 1, Q("95 mm")),
    Sketcher.Constraint("DistanceY", 4, 3, -1, 1, Q("10 mm")),
    Sketcher.Constraint("DistanceY", -1, 1, 9, 3, Q("95 mm")),
    Sketcher.Constraint("DistanceX", -1, 1, 14, 3, Q("95 mm")),
    Sketcher.Constraint("DistanceX", 0, 2, -1, 1, Q("105 mm")),
    Sketcher.Constraint("DistanceX", 5, 2, -1, 1, Q("10 mm")),
    Sketcher.Constraint("DistanceY", -1, 1, 5, 2, Q("85 mm")),
    Sketcher.Constraint("DistanceX", -1, 1, 10, 2, Q("85 mm")),
])
pad9 = body.newObject("PartDesign::Pad", "Pad008")
pad9.Profile = sketch19
pad9.Length = 3

sketch20 = body.newObject("Sketcher::SketchObject", "Sketch019")
sketch20.AttachmentSupport = (doc.getObject("XZ_Plane"), [""])
sketch20.MapMode = "FlatFace"
sketch20.AttachmentOffset = App.Placement(Vector(0, 0, -109), App.Rotation())
add_polygon(sketch20, [(-85, -85), (-85, -65), (85, -65), (85, -85)])
sketch20.addConstraint([
    Sketcher.Constraint("Vertical", 0),
    Sketcher.Constraint("Horizontal", 1),
    Sketcher.Constraint("Vertical", 2),
    Sketcher.Constraint("Horizontal", 3),
    Sketcher.Constraint("DistanceX", 1, 1, 1, 2, Q("170 mm")),
    Sketcher.Constraint("DistanceY", 0, 1, 0, 2, Q("20 mm")),
    Sketcher.Constraint("DistanceX", 0, 2, -1, 1, Q("85 mm")),
    Sketcher.Constraint("DistanceY", 0, 2, -1, 1, Q("65 mm")),
])
pocket11 = body.newObject("PartDesign::Pocket", "Pocket010")
pocket11.Profile = sketch20
pocket11.Length = 100
pocket11.Reversed = True

sketch21 = body.newObject("Sketcher::SketchObject", "Sketch020")
sketch21.AttachmentSupport = (doc.getObject("XZ_Plane"), [""])
sketch21.MapMode = "FlatFace"
sketch21.AttachmentOffset = App.Placement(Vector(0, 0, -4), App.Rotation())
add_polygon(sketch21, [(-82, -65), (-82, -62), (85, -62), (85, -65)])
sketch21.addConstraint([
    Sketcher.Constraint("Vertical", 0),
    Sketcher.Constraint("Horizontal", 1),
    Sketcher.Constraint("Vertical", 2),
    Sketcher.Constraint("Horizontal", 3),
    Sketcher.Constraint("DistanceX", 1, 1, 1, 2, Q("167 mm")),
    Sketcher.Constraint("DistanceY", 0, 1, 0, 2, Q("3 mm")),
    Sketcher.Constraint("DistanceX", 0, 2, -1, 1, Q("82 mm")),
    Sketcher.Constraint("DistanceY", 0, 2, -1, 1, Q("62 mm")),
])
pad10 = body.newObject("PartDesign::Pad", "Pad009")
pad10.Profile = sketch21
pad10.Length = 105
pad10.Reversed = True

sketch22 = body.newObject("Sketcher::SketchObject", "Sketch021")
sketch22.AttachmentSupport = (doc.getObject("XZ_Plane"), [""])
sketch22.MapMode = "FlatFace"
sketch22.AttachmentOffset = App.Placement(Vector(0, 0, -1), App.Rotation())
add_polygon(sketch22, [(77, -65), (85, -65), (85, -62), (80, -62)])
add_polygon(sketch22, [(-80, -62), (-82, -62), (-82, -65), (-77, -65)])
sketch22.addConstraint([
    Sketcher.Constraint("Horizontal", 0),
    Sketcher.Constraint("Vertical", 1),
    Sketcher.Constraint("Horizontal", 2),
    Sketcher.Constraint("Horizontal", 4),
    Sketcher.Constraint("Vertical", 5),
    Sketcher.Constraint("Horizontal", 6),
    Sketcher.Constraint("Symmetric", 3, 2, 6, 2, -2),
    Sketcher.Constraint("Symmetric", 2, 2, 7, 2, -2),
    Sketcher.Constraint("Perpendicular", 3, 7),
    Sketcher.Constraint("Equal", 2, 6),
    Sketcher.Constraint("DistanceX", 0, 1, 0, 2, Q("8 mm")),
    Sketcher.Constraint("DistanceX", 2, 2, 2, 1, Q("5 mm")),
    Sketcher.Constraint("DistanceX", -1, 1, 0, 2, Q("85 mm")),
    Sketcher.Constraint("DistanceY", 0, 2, -1, 1, Q("65 mm")),
])
pocket12 = body.newObject("PartDesign::Pocket", "Pocket011")
pocket12.Profile = sketch22
pocket12.Length = 19

sketch23 = body.newObject("Sketcher::SketchObject", "Sketch022")
sketch23.AttachmentSupport = (doc.getObject("XZ_Plane"), [""])
sketch23.MapMode = "FlatFace"
sketch23.AttachmentOffset = App.Placement(Vector(0, 0, -1), App.Rotation())
add_polygon(sketch23, [(-57, 85), (-57, 84), (57, 84), (57, 85)])
add_polygon(sketch23, [(84, 57), (84, -57), (85, -57), (85, 57)])
add_polygon(sketch23, [(-57, -84), (-57, -85), (57, -85), (57, -84)])
add_polygon(sketch23, [(-85, 57), (-85, -57), (-84, -57), (-84, 57)])
sketch23.addConstraint([
    Sketcher.Constraint("Vertical", 0),
    Sketcher.Constraint("Horizontal", 1),
    Sketcher.Constraint("Vertical", 2),
    Sketcher.Constraint("Horizontal", 3),
    Sketcher.Constraint("Vertical", 4),
    Sketcher.Constraint("Horizontal", 5),
    Sketcher.Constraint("Vertical", 6),
    Sketcher.Constraint("Horizontal", 7),
    Sketcher.Constraint("Vertical", 8),
    Sketcher.Constraint("Horizontal", 9),
    Sketcher.Constraint("Vertical", 10),
    Sketcher.Constraint("Horizontal", 11),
    Sketcher.Constraint("Vertical", 12),
    Sketcher.Constraint("Horizontal", 13),
    Sketcher.Constraint("Vertical", 14),
    Sketcher.Constraint("Horizontal", 15),
    Sketcher.Constraint("Symmetric", 2, 2, 8, 2, -1, 1),
    Sketcher.Constraint("Symmetric", 0, 2, 10, 2, -1, 1),
    Sketcher.Constraint("Symmetric", 6, 2, 12, 2, -1, 1),
    Sketcher.Constraint("Symmetric", 4, 2, 14, 2, -1, 1),
    Sketcher.Constraint("Horizontal", 5, 2, 12, 2),
    Sketcher.Constraint("Vertical", 3, 2, 8, 2),
    Sketcher.Constraint("Equal", 15, 0),
    Sketcher.Constraint("Equal", 11, 4),
    Sketcher.Constraint("DistanceX", 1, 1, 1, 2, Q("114 mm")),
    Sketcher.Constraint("DistanceX", 5, 1, 5, 2, Q("1 mm")),
    Sketcher.Constraint("DistanceY", -1, 1, 0, 2, Q("84 mm")),
    Sketcher.Constraint("DistanceX", -1, 1, 4, 2, Q("84 mm")),
])
pocket13 = body.newObject("PartDesign::Pocket", "Pocket012")
pocket13.Profile = sketch23
pocket13.Length = 19

sketch24 = body.newObject("Sketcher::SketchObject", "Sketch023")
sketch24.AttachmentSupport = (doc.getObject("XZ_Plane"), [""])
sketch24.MapMode = "FlatFace"
sketch24.AttachmentOffset = App.Placement(Vector(0, 0, -109), App.Rotation())
add_polygon(sketch24, [(82, -51), (82, -62), (77, -62), (77, -56)])
sketch24.addConstraint([
    Sketcher.Constraint("Vertical", 0),
    Sketcher.Constraint("Horizontal", 1),
    Sketcher.Constraint("Vertical", 2),
    Sketcher.Constraint("DistanceX", 1, 2, 1, 1, Q("5 mm")),
    Sketcher.Constraint("Angle", 3, Q("45 deg")),
    Sketcher.Constraint("DistanceX", -1, 1, 0, 2, Q("82 mm")),
    Sketcher.Constraint("DistanceY", 0, 2, -1, 1, Q("62 mm")),
    Sketcher.Constraint("DistanceY", 0, 2, 0, 1, Q("11.242641 mm")),
])
pad11 = body.newObject("PartDesign::Pad", "Pad010")
pad11.Profile = sketch24
pad11.Length = 90

sketch25 = body.newObject("Sketcher::SketchObject", "Sketch024")
sketch25.AttachmentSupport = (doc.getObject("XZ_Plane"), [""])
sketch25.MapMode = "FlatFace"
sketch25.AttachmentOffset = App.Placement(Vector(0, 0, -109), App.Rotation())
add_polygon(sketch25, [(-85, -65), (-85, -64), (85, -64), (85, -65)])
sketch25.addConstraint([
    Sketcher.Constraint("Vertical", 0),
    Sketcher.Constraint("Horizontal", 1),
    Sketcher.Constraint("Vertical", 2),
    Sketcher.Constraint("Horizontal", 3),
    Sketcher.Constraint("DistanceX", 1, 1, 1, 2, Q("170 mm")),
    Sketcher.Constraint("DistanceY", 0, 1, 0, 2, Q("1 mm")),
    Sketcher.Constraint("DistanceX", 0, 2, -1, 1, Q("85 mm")),
    Sketcher.Constraint("DistanceY", 0, 2, -1, 1, Q("64 mm")),
])
pocket14 = body.newObject("PartDesign::Pocket", "Pocket013")
pocket14.Profile = sketch25
pocket14.Length = 100
pocket14.Reversed = True

sketch26 = body.newObject("Sketcher::SketchObject", "Sketch025")
sketch26.AttachmentSupport = (doc.getObject("XZ_Plane"), [""])
sketch26.MapMode = "FlatFace"
sketch26.AttachmentOffset = App.Placement(Vector(0, 0, -9), App.Rotation())
add_polygon(sketch26, [(67.8, -65), (-67.8, -65), (-68.8, -64), (68.8, -64)])
sketch26.addConstraint([
    Sketcher.Constraint("Horizontal", 0),
    Sketcher.Constraint("Horizontal", 2),
    Sketcher.Constraint("Perpendicular", 1, 3),
    Sketcher.Constraint("Equal", 1, 3),
    Sketcher.Constraint("DistanceY", 0, 2, -1, 1, Q("65 mm")),
    Sketcher.Constraint("DistanceY", 1, 2, -1, 1, Q("64 mm")),
    Sketcher.Constraint("DistanceX", 0, 2, 0, 1, Q("135.514719 mm")),
    Sketcher.Constraint("DistanceX", 0, 2, -1, 1, Q("67.757359 mm")),
])
pocket15 = body.newObject("PartDesign::Pocket", "Pocket014")
pocket15.Profile = sketch26
pocket15.Length = 5
pocket15.Reversed = True

sketch27 = body.newObject("Sketcher::SketchObject", "Sketch026")
sketch27.AttachmentSupport = (doc.getObject("XZ_Plane"), [""])
sketch27.MapMode = "FlatFace"
sketch27.AttachmentOffset = App.Placement(Vector(0, 0, -109), App.Rotation())
add_polygon(sketch27, [(-82, -62), (-82, -61), (77, -61), (77, -62)])
add_polygon(sketch27, [(82, -62), (82, -61), (85, -61), (85, -62)])
sketch27.addConstraint([
    Sketcher.Constraint("Vertical", 0),
    Sketcher.Constraint("Horizontal", 1),
    Sketcher.Constraint("Vertical", 2),
    Sketcher.Constraint("Horizontal", 3),
    Sketcher.Constraint("Vertical", 4),
    Sketcher.Constraint("Horizontal", 5),
    Sketcher.Constraint("Vertical", 6),
    Sketcher.Constraint("Horizontal", 7),
    Sketcher.Constraint("Symmetric", 0, 2, 4, 2, -2),
    Sketcher.Constraint("Horizontal", 3, 2, 6, 2),
    Sketcher.Constraint("DistanceX", 1, 1, 1, 2, Q("159 mm")),
    Sketcher.Constraint("DistanceX", 5, 1, 5, 2, Q("3 mm")),
    Sketcher.Constraint("DistanceY", 0, 1, 0, 2, Q("1 mm")),
    Sketcher.Constraint("DistanceX", 0, 2, -1, 1, Q("82 mm")),
    Sketcher.Constraint("DistanceY", 0, 2, -1, 1, Q("61 mm")),
])
pad12 = body.newObject("PartDesign::Pad", "Pad011")
pad12.Profile = sketch27
pad12.Length = 105

sketch28 = body.newObject("Sketcher::SketchObject", "Sketch027")
sketch28.AttachmentSupport = (doc.getObject("XZ_Plane"), [""])
sketch28.MapMode = "FlatFace"
sketch28.AttachmentOffset = App.Placement(Vector(0, 0, -4), App.Rotation())
add_polygon(sketch28, [(85, -62), (85, -57), (80, -57), (80, -62)])
sketch28.addConstraint([
    Sketcher.Constraint("Vertical", 0),
    Sketcher.Constraint("Horizontal", 1),
    Sketcher.Constraint("Vertical", 2),
    Sketcher.Constraint("Horizontal", 3),
    Sketcher.Constraint("Equal", 3, 0),
    Sketcher.Constraint("DistanceX", 1, 2, 1, 1, Q("5 mm")),
    Sketcher.Constraint("DistanceX", -1, 1, 0, 2, Q("85 mm")),
    Sketcher.Constraint("DistanceY", 0, 2, -1, 1, Q("57 mm")),
])
pocket16 = body.newObject("PartDesign::Pocket", "Pocket015")
pocket16.Profile = sketch28
pocket16.Length = 16

sketch29 = body.newObject("Sketcher::SketchObject", "Sketch028")
sketch29.AttachmentSupport = (doc.getObject("XZ_Plane"), [""])
sketch29.MapMode = "FlatFace"
sketch29.AttachmentOffset = App.Placement(Vector(0, 0, -4), App.Rotation())
add_polygon(sketch29, [(-82, -61), (-82, -62), (-80, -62), (-80, -61)])
sketch29.addConstraint([
    Sketcher.Constraint("Vertical", 0),
    Sketcher.Constraint("Horizontal", 1),
    Sketcher.Constraint("Vertical", 2),
    Sketcher.Constraint("Horizontal", 3),
    Sketcher.Constraint("DistanceX", 1, 1, 1, 2, Q("2 mm")),
    Sketcher.Constraint("DistanceY", 0, 2, 0, 1, Q("1 mm")),
    Sketcher.Constraint("DistanceX", 0, 2, -1, 1, Q("82 mm")),
    Sketcher.Constraint("DistanceY", 0, 2, -1, 1, Q("62 mm")),
])
pocket17 = body.newObject("PartDesign::Pocket", "Pocket016")
pocket17.Profile = sketch29
pocket17.Length = 16

sketch30 = body.newObject("Sketcher::SketchObject", "Sketch029")
sketch30.AttachmentSupport = (doc.getObject("YZ_Plane"), [""])
sketch30.MapMode = "FlatFace"
sketch30.AttachmentOffset = App.Placement(Vector(0, 0, 82), App.Rotation())
sketch30.addGeometry([
    Part.Circle(Vector(86, -55.9, 0), Vector(0, 0, 1), 1.5),
    Part.Circle(Vector(46, -55.9, 0), Vector(0, 0, 1), 1.5),
], False)
sketch30.addConstraint([
    Sketcher.Constraint("Equal", 0, 1),
    Sketcher.Constraint("Horizontal", 0, 3, 1, 3),
    Sketcher.Constraint("Diameter", 0, Q("3 mm")),
    Sketcher.Constraint("DistanceX", -1, 1, 0, 3, Q("86 mm")),
    Sketcher.Constraint("DistanceX", -1, 1, 1, 3, Q("46 mm")),
    Sketcher.Constraint("DistanceY", 0, 3, -1, 1, Q("55.87868 mm")),
])
pocket18 = body.newObject("PartDesign::Pocket", "Pocket017")
pocket18.Profile = sketch30
pocket18.Length = 16

sketch31 = body.newObject("Sketcher::SketchObject", "Sketch030")
sketch31.AttachmentSupport = (doc.getObject("YZ_Plane"), [""])
sketch31.MapMode = "FlatFace"
sketch31.AttachmentOffset = App.Placement(Vector(0, 0, 77), App.Rotation())
sketch31.addGeometry([
    Part.Circle(Vector(86, -55.9, 0), Vector(0, 0, 1), 3),
    Part.Circle(Vector(46, -55.9, 0), Vector(0, 0, 1), 3),
], False)
sketch31.addConstraint([
    Sketcher.Constraint("Equal", 0, 1),
    Sketcher.Constraint("Horizontal", 0, 3, 1, 3),
    Sketcher.Constraint("Diameter", 0, Q("6 mm")),
    Sketcher.Constraint("DistanceX", -1, 1, 0, 3, Q("86 mm")),
    Sketcher.Constraint("DistanceX", -1, 1, 1, 3, Q("46 mm")),
    Sketcher.Constraint("DistanceY", 0, 3, -1, 1, Q("55.87868 mm")),
])
pocket19 = body.newObject("PartDesign::Pocket", "Pocket018")
pocket19.Profile = sketch31
pocket19.Length = 2
pocket19.Reversed = True

sketch32 = body.newObject("Sketcher::SketchObject", "Sketch031")
sketch32.AttachmentSupport = (doc.getObject("YZ_Plane"), [""])
sketch32.MapMode = "FlatFace"
sketch32.AttachmentOffset = App.Placement(Vector(0, 0, 85), App.Rotation())
add_polygon(sketch32, [(109, -85), (109, -64), (85, -64)])
sketch32.addConstraint([
    Sketcher.Constraint("Vertical", 0),
    Sketcher.Constraint("Horizontal", 1),
    Sketcher.Constraint("DistanceX", 1, 2, 1, 1, Q("24 mm")),
    Sketcher.Constraint("DistanceY", 0, 1, 0, 2, Q("21 mm")),
    Sketcher.Constraint("DistanceX", -1, 1, 0, 2, Q("109 mm")),
    Sketcher.Constraint("DistanceY", 0, 2, -1, 1, Q("64 mm")),
])
pad13 = body.newObject("PartDesign::Pad", "Pad012")
pad13.Profile = sketch32
pad13.Length = 170
pad13.Reversed = True

sketch33 = body.newObject("Sketcher::SketchObject", "Sketch032")
sketch33.AttachmentSupport = (doc.getObject("YZ_Plane"), [""])
sketch33.MapMode = "FlatFace"
sketch33.AttachmentOffset = App.Placement(Vector(0, 0, 85), App.Rotation())
add_polygon(sketch33, [(109, -81), (109, -61), (86, -61)])
sketch33.addConstraint([
    Sketcher.Constraint("Vertical", 0),
    Sketcher.Constraint("Horizontal", 1),
    Sketcher.Constraint("DistanceX", -1, 1, 0, 2, Q("109 mm")),
    Sketcher.Constraint("DistanceY", 0, 2, -1, 1, Q("61 mm")),
    Sketcher.Constraint("DistanceX", 1, 2, 1, 1, Q("22.872795 mm")),
    Sketcher.Constraint("DistanceY", 0, 1, 0, 2, Q("20.013695 mm")),
])
pocket20 = body.newObject("PartDesign::Pocket", "Pocket019")
pocket20.Profile = sketch33
pocket20.Length = 167

sketch34 = body.newObject("Sketcher::SketchObject", "Sketch033")
sketch34.AttachmentSupport = (doc.getObject("YZ_Plane"), [""])
sketch34.MapMode = "FlatFace"
sketch34.AttachmentOffset = App.Placement(Vector(0, 0, 85), App.Rotation())
add_polygon(sketch34, [(109, -61), (86, -61), (109, -81)])
sketch34.addConstraint([
    Sketcher.Constraint("Horizontal", 0),
    Sketcher.Constraint("Vertical", 2),
    Sketcher.Constraint("DistanceY", 0, 2, -1, 1, Q("61 mm")),
    Sketcher.Constraint("DistanceX", -1, 1, 1, 2, Q("109 mm")),
    Sketcher.Constraint("DistanceX", 0, 2, 0, 1, Q("22.872795 mm")),
    Sketcher.Constraint("DistanceY", 2, 1, 2, 2, Q("20.013695 mm")),
])
pad14 = body.newObject("PartDesign::Pad", "Pad013")
pad14.Profile = sketch34
pad14.Length = 8
pad14.Reversed = True

doc.recompute()
